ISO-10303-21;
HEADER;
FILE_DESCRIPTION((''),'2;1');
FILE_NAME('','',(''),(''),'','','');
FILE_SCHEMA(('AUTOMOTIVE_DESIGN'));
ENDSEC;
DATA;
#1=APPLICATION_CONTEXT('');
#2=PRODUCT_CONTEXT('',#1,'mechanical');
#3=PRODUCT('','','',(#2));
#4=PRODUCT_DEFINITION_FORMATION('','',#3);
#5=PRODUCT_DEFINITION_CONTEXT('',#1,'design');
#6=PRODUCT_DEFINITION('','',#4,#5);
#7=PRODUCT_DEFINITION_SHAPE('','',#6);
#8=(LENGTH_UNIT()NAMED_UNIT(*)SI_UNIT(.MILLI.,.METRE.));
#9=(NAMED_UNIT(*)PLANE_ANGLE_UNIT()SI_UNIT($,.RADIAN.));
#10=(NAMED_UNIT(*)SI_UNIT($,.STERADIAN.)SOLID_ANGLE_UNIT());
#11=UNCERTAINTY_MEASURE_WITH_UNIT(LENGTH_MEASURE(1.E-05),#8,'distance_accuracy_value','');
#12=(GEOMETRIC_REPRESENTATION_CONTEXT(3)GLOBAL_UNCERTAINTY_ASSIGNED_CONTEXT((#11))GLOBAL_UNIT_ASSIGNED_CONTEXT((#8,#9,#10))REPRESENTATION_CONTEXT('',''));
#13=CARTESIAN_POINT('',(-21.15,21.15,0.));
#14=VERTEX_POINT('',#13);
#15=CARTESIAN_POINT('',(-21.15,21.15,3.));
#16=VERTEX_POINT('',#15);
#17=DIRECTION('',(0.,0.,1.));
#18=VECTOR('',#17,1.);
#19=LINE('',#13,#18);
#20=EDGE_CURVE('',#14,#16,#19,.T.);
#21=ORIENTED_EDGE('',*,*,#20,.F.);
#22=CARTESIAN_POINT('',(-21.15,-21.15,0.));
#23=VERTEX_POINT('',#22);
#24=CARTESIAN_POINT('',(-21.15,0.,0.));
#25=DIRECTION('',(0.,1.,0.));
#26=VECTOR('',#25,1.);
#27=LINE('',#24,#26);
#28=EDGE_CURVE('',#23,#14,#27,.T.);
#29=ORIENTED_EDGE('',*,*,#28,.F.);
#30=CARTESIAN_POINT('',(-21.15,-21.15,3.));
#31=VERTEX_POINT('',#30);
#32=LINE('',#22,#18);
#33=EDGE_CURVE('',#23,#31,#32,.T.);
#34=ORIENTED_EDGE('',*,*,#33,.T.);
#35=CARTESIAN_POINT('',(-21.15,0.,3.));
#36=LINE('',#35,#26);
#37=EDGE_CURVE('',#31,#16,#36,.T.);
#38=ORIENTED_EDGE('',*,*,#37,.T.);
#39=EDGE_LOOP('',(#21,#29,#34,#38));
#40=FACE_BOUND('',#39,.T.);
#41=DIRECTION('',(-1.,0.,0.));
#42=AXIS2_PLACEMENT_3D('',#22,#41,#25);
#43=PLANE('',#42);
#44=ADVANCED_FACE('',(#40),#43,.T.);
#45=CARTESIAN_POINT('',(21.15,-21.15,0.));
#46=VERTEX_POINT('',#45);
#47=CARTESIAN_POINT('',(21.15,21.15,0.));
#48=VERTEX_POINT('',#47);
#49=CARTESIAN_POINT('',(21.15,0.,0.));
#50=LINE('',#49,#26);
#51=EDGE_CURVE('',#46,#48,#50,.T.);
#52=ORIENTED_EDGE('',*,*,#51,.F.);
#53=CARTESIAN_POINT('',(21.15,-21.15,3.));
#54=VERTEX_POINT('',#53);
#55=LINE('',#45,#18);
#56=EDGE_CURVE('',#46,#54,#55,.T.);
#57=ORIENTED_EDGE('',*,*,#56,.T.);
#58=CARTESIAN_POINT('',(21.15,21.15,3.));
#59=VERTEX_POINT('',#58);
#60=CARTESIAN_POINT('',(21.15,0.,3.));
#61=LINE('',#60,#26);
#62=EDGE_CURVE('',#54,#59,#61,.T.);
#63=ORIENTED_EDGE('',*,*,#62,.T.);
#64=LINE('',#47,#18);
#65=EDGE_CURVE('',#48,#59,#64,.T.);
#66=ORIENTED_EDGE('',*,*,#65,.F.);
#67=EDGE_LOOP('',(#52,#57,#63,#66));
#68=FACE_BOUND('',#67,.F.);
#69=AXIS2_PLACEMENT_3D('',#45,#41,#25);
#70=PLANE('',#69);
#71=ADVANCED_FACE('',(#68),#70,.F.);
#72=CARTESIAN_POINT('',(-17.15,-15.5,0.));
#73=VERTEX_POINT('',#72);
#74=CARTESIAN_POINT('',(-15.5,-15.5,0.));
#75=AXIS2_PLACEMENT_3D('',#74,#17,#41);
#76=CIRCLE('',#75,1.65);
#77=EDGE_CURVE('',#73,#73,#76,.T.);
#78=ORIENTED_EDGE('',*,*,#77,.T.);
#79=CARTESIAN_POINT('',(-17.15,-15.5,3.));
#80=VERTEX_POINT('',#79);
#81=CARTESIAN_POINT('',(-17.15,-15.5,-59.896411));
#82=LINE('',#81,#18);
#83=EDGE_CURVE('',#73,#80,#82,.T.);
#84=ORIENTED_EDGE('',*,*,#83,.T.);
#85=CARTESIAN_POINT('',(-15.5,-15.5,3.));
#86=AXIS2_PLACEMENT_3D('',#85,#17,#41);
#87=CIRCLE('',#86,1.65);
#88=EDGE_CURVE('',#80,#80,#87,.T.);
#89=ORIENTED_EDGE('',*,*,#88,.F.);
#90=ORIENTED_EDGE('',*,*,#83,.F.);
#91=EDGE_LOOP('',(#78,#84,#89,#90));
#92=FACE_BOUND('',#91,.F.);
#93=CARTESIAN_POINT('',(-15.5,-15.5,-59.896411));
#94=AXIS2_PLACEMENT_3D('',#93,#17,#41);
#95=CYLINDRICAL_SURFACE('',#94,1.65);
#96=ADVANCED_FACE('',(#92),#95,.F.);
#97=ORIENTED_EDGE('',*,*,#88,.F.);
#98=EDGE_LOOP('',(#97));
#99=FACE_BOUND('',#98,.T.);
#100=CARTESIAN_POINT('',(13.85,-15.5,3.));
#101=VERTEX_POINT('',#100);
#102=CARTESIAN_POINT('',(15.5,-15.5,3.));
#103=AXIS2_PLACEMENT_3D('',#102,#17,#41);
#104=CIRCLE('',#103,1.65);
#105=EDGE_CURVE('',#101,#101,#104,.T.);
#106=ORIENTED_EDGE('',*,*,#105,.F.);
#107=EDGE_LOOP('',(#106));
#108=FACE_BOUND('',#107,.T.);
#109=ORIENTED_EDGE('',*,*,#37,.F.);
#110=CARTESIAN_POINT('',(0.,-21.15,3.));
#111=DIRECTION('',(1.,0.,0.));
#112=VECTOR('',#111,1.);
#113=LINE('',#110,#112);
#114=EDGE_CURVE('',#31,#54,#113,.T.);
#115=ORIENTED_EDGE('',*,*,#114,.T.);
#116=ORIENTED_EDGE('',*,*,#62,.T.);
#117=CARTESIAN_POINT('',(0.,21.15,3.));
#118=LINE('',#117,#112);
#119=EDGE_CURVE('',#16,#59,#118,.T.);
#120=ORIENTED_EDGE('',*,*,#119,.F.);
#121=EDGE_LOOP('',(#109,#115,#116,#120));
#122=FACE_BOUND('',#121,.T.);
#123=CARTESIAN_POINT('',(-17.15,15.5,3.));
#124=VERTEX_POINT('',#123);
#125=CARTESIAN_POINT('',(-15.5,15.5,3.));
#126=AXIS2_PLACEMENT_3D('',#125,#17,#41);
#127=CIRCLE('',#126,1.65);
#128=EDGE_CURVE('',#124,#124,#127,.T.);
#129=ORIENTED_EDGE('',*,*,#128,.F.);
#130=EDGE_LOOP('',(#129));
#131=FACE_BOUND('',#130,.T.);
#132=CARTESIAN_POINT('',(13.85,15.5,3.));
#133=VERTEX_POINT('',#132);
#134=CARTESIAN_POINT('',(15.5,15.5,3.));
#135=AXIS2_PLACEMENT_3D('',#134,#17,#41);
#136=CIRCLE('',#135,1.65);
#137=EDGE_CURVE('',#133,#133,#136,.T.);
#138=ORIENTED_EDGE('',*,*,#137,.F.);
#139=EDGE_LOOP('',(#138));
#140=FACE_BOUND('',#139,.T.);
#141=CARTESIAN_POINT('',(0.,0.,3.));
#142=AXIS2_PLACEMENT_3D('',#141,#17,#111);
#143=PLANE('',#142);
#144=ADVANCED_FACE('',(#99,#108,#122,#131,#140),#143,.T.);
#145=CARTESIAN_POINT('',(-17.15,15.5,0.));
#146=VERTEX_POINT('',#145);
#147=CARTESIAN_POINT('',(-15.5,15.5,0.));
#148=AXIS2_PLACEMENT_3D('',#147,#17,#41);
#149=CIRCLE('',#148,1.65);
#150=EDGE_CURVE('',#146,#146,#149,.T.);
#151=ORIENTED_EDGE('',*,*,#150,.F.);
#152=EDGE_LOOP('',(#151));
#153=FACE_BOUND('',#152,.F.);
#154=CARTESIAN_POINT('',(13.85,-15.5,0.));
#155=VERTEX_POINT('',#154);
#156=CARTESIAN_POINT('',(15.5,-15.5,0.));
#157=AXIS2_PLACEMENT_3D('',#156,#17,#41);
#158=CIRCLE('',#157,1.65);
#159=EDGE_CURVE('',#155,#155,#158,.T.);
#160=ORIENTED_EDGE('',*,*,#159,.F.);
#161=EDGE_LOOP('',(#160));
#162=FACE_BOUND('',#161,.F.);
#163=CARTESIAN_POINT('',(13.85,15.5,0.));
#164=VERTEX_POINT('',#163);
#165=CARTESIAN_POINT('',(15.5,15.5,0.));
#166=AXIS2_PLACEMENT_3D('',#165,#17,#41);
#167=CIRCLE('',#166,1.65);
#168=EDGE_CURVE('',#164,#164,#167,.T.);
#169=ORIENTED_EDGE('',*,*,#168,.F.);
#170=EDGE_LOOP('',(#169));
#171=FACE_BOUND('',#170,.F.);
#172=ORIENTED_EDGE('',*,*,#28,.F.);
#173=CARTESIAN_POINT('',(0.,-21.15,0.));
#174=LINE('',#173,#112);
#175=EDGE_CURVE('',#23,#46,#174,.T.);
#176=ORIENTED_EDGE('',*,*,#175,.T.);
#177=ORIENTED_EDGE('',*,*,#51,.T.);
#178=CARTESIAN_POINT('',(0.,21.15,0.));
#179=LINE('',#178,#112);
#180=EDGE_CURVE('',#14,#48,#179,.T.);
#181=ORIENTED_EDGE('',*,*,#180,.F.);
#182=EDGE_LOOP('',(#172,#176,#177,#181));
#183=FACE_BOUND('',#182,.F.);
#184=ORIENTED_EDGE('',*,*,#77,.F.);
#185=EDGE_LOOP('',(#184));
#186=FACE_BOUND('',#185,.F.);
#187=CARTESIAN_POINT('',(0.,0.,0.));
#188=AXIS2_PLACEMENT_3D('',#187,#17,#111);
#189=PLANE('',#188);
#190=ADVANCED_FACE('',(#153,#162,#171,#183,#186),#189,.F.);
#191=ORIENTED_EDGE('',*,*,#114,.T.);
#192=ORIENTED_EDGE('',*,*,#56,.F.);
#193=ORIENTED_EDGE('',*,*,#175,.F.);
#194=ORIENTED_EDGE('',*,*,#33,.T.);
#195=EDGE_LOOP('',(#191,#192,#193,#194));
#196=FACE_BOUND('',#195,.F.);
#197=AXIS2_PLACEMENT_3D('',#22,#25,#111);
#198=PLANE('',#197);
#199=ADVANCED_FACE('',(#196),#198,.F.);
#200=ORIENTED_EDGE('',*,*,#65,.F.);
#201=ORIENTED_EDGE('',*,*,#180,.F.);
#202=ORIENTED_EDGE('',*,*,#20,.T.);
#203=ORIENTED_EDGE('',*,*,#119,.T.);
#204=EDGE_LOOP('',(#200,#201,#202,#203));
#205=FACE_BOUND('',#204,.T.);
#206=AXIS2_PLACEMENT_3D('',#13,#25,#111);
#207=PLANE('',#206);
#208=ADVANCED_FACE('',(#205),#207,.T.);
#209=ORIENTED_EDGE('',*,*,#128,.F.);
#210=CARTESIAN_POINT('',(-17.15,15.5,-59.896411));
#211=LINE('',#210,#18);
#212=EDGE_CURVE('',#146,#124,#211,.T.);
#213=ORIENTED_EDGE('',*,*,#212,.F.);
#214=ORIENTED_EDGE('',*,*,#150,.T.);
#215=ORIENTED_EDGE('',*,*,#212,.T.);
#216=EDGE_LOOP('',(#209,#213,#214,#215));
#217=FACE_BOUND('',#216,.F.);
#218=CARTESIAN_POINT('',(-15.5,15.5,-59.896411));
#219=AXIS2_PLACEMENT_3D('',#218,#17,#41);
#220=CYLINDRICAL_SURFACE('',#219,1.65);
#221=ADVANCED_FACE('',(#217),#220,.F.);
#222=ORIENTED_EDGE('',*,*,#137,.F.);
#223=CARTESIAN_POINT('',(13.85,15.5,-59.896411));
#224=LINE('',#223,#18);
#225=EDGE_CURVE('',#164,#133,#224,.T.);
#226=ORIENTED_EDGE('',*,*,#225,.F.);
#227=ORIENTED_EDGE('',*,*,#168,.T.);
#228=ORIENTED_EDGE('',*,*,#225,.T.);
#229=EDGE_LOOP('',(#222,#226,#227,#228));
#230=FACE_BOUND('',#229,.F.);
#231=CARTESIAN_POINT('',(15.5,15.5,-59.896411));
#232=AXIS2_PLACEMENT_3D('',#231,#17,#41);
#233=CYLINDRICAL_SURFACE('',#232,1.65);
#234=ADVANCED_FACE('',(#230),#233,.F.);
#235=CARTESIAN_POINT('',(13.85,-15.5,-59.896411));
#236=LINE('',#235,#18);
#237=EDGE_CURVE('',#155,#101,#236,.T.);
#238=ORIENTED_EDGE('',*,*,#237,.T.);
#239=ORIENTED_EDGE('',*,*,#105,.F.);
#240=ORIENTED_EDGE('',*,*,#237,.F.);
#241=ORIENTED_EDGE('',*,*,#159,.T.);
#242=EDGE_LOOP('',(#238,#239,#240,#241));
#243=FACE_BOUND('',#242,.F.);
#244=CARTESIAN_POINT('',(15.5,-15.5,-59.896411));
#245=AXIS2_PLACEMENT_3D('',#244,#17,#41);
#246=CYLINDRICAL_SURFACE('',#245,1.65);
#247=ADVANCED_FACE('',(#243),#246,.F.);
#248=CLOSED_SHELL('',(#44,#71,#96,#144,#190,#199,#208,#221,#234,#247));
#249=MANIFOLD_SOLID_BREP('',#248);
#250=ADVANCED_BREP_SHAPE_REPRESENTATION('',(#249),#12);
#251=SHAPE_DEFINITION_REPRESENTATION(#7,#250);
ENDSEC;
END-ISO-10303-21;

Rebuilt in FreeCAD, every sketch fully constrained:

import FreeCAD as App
import Part
import Sketcher

V = App.Vector
Q = App.Units.Quantity


def add_polygon(sketch, points):
    """Adds a closed chain of lines whose ends are joined by coincident constraints."""
    first, n = sketch.GeometryCount, len(points)
    for a, b in zip(points, points[1:] + points[:1]):
        sketch.addGeometry(Part.LineSegment(App.Vector(*a, 0), App.Vector(*b, 0)), False)
    for i in range(n):
        sketch.addConstraint(Sketcher.Constraint("Coincident", first + i, 2, first + (i + 1) % n, 1))

doc = App.newDocument("Part")
body = doc.addObject("PartDesign::Body", "Body")

sketch1 = doc.addObject("Sketcher::SketchObject", "Sketch")
body.addObject(sketch1)
sketch1.AttachmentSupport = (doc.XY_Plane, [""])
sketch1.MapMode = "FlatFace"
add_polygon(sketch1, [(-21, 21), (-21, -21), (21, -21), (21, 21)])
sketch1.addConstraint([
    Sketcher.Constraint("Vertical", 0),
    Sketcher.Constraint("Horizontal", 1),
    Sketcher.Constraint("Vertical", 2),
    Sketcher.Constraint("Horizontal", 3),
    Sketcher.Constraint("Symmetric", 0, 2, 2, 2, -1, 1),
    Sketcher.Constraint("Equal", 3, 0),
    Sketcher.Constraint("DistanceX", 1, 1, 1, 2, Q("42.3 mm")),
])
pad1 = doc.addObject("PartDesign::Pad", "Pad")
body.addObject(pad1)
pad1.Profile = sketch1
pad1.Length = 3

sketch2 = doc.addObject("Sketcher::SketchObject", "Sketch001")
body.addObject(sketch2)
sketch2.AttachmentSupport = (doc.XY_Plane, [""])
sketch2.MapMode = "FlatFace"
sketch2.addGeometry([
    Part.Circle(V(15.5, -15.5, 0), V(0, 0, 1), 1.6),
    Part.Circle(V(15.5, 15.5, 0), V(0, 0, 1), 1.6),
    Part.Circle(V(-15.5, 15.5, 0), V(0, 0, 1), 1.6),
    Part.Circle(V(-15.5, -15.5, 0), V(0, 0, 1), 1.6),
], False)
sketch2.addConstraint([
    Sketcher.Constraint("Equal", 0, 1),
    Sketcher.Constraint("Equal", 1, 2),
    Sketcher.Constraint("Equal", 2, 3),
    Sketcher.Constraint("Symmetric", 0, 3, 2, 3, -1, 1),
    Sketcher.Constraint("Symmetric", 1, 3, 3, 3, -1, 1),
    Sketcher.Constraint("Symmetric", 1, 3, 2, 3, -2),
    Sketcher.Constraint("Diameter", 0, Q("3.3 mm")),
    Sketcher.Constraint("DistanceY", 0, 3, 1, 3, Q("31 mm")),
    Sketcher.Constraint("DistanceX", 2, 3, 1, 3, Q("31 mm")),
])
doc.recompute()
hole = doc.addObject("PartDesign::Hole", "Hole")
body.addObject(hole)
hole.Profile = sketch2
hole.ThreadType = "None"
hole.Diameter = 3.3
hole.DepthType = "ThroughAll"
hole.Reversed = True

doc.recompute()
